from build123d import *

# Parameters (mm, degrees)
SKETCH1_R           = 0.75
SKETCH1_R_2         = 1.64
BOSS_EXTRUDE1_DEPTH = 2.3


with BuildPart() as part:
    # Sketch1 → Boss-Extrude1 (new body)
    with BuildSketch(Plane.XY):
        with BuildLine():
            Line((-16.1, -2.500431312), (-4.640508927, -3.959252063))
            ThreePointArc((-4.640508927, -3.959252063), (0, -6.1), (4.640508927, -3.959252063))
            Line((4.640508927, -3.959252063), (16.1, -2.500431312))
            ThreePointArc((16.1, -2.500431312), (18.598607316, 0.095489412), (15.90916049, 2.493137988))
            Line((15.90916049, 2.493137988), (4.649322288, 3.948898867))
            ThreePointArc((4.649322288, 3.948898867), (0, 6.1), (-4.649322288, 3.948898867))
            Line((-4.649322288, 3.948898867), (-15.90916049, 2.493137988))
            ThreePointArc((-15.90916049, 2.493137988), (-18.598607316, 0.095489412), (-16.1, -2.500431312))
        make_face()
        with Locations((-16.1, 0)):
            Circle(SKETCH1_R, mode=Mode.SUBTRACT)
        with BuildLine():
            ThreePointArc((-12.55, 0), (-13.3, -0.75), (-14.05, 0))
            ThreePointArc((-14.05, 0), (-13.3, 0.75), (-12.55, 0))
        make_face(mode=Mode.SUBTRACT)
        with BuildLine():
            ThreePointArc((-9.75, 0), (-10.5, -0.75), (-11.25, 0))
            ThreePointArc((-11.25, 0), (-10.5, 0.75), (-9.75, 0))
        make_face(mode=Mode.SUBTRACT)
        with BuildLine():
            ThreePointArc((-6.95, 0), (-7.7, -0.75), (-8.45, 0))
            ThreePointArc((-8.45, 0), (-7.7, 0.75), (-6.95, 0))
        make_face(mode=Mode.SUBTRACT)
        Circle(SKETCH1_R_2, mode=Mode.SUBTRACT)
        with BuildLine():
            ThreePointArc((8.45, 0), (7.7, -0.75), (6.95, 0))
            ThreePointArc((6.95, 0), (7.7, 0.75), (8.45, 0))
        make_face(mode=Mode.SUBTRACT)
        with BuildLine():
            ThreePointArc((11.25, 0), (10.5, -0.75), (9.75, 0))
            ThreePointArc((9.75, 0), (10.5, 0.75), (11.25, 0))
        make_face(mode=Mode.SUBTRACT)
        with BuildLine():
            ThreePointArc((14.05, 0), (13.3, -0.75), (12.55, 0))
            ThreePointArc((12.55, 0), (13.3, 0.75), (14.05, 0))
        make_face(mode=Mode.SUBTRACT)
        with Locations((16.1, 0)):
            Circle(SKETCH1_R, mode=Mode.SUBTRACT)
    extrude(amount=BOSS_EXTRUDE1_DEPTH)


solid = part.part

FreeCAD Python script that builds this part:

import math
import FreeCAD as App
import Part
import Sketcher

doc = App.newDocument("Part")
body = doc.addObject("PartDesign::Body", "Body")

# Sketch on XY plane
sketch1 = body.newObject("Sketcher::SketchObject", "Sketch")
sketch1.AttachmentSupport = (doc.getObject("XY_Plane"), [""])
sketch1.MapMode = "FlatFace"
sketch1.addGeometry(Part.LineSegment(App.Vector(-16.1, -2.5, 0), App.Vector(-4.6, -4, 0)), False)
sketch1.addGeometry(Part.ArcOfCircle(Part.Circle(App.Vector(0, 0, 0), App.Vector(0, 0, 1), 6.1), math.radians(-140), math.radians(-40)), False)
sketch1.addGeometry(Part.LineSegment(App.Vector(4.6, -4, 0), App.Vector(16.1, -2.5, 0)), False)
sketch1.addGeometry(Part.ArcOfCircle(Part.Circle(App.Vector(16.1, 0, 0), App.Vector(0, 0, 1), 2.5), math.radians(-90), math.radians(94)), False)
sketch1.addGeometry(Part.LineSegment(App.Vector(15.9, 2.5, 0), App.Vector(4.6, 3.9, 0)), False)
sketch1.addGeometry(Part.ArcOfCircle(Part.Circle(App.Vector(0, 0, 0), App.Vector(0, 0, 1), 6.1), math.radians(40), math.radians(140)), False)
sketch1.addGeometry(Part.LineSegment(App.Vector(-4.6, 3.9, 0), App.Vector(-15.9, 2.5, 0)), False)
sketch1.addGeometry(Part.ArcOfCircle(Part.Circle(App.Vector(-16.1, 0, 0), App.Vector(0, 0, 1), 2.5), math.radians(86), math.radians(270)), False)
sketch1.addGeometry(Part.Circle(App.Vector(-16.1, 0, 0), App.Vector(0, 0, 1), 0.8), False)
sketch1.addGeometry(Part.Circle(App.Vector(-13.3, 0, 0), App.Vector(0, 0, 1), 0.8), False)
sketch1.addGeometry(Part.Circle(App.Vector(-10.5, 0, 0), App.Vector(0, 0, 1), 0.8), False)
sketch1.addGeometry(Part.Circle(App.Vector(0, 0, 0), App.Vector(0, 0, 1), 1.6), False)
sketch1.addGeometry(Part.Circle(App.Vector(10.5, 0, 0), App.Vector(0, 0, 1), 0.8), False)
sketch1.addGeometry(Part.Circle(App.Vector(13.3, 0, 0), App.Vector(0, 0, 1), 0.8), False)
sketch1.addGeometry(Part.Circle(App.Vector(16.1, 0, 0), App.Vector(0, 0, 1), 0.8), False)
sketch1.addGeometry(Part.Circle(App.Vector(-7.7, 0, 0), App.Vector(0, 0, 1), 0.8), False)
sketch1.addGeometry(Part.Circle(App.Vector(7.7, 0, 0), App.Vector(0, 0, 1), 0.8), False)
sketch1.addConstraint(Sketcher.Constraint("Coincident", 0, 2, 1, 1))
sketch1.addConstraint(Sketcher.Constraint("Coincident", 1, 2, 2, 1))
sketch1.addConstraint(Sketcher.Constraint("Coincident", 2, 2, 3, 1))
sketch1.addConstraint(Sketcher.Constraint("Coincident", 3, 2, 4, 1))
sketch1.addConstraint(Sketcher.Constraint("Coincident", 4, 2, 5, 1))
sketch1.addConstraint(Sketcher.Constraint("Coincident", 5, 2, 6, 1))
sketch1.addConstraint(Sketcher.Constraint("Coincident", 6, 2, 7, 1))
sketch1.addConstraint(Sketcher.Constraint("Coincident", 7, 2, 0, 1))
sketch1.addConstraint(Sketcher.Constraint("Coincident", 1, 3, -1, 1))
sketch1.addConstraint(Sketcher.Constraint("Coincident", 5, 3, -1, 1))
sketch1.addConstraint(Sketcher.Constraint("Coincident", 11, 3, -1, 1))
sketch1.addConstraint(Sketcher.Constraint("Coincident", 8, 3, 7, 3))
sketch1.addConstraint(Sketcher.Constraint("Coincident", 14, 3, 3, 3))
sketch1.addConstraint(Sketcher.Constraint("Equal", 1, 5))
sketch1.addConstraint(Sketcher.Constraint("Equal", 3, 7))
sketch1.addConstraint(Sketcher.Constraint("Equal", 8, 9))
sketch1.addConstraint(Sketcher.Constraint("Equal", 9, 10))
sketch1.addConstraint(Sketcher.Constraint("Equal", 10, 12))
sketch1.addConstraint(Sketcher.Constraint("Equal", 12, 13))
sketch1.addConstraint(Sketcher.Constraint("Equal", 13, 14))
sketch1.addConstraint(Sketcher.Constraint("Equal", 14, 15))
sketch1.addConstraint(Sketcher.Constraint("Equal", 15, 16))
sketch1.addConstraint(Sketcher.Constraint("Symmetric", 3, 3, 7, 3, -1, 1))
sketch1.addConstraint(Sketcher.Constraint("Symmetric", 10, 3, 12, 3, -1, 1))
sketch1.addConstraint(Sketcher.Constraint("Symmetric", 9, 3, 13, 3, -1, 1))
sketch1.addConstraint(Sketcher.Constraint("Symmetric", 15, 3, 16, 3, -1, 1))
sketch1.addConstraint(Sketcher.Constraint("Symmetric", 3, 2, 6, 2, -2))
sketch1.addConstraint(Sketcher.Constraint("PointOnObject", 9, 3, -1))
sketch1.addConstraint(Sketcher.Constraint("PointOnObject", 10, 3, -1))
sketch1.addConstraint(Sketcher.Constraint("PointOnObject", 15, 3, -1))
sketch1.addConstraint(Sketcher.Constraint("Horizontal", 0, 2, 1, 2))
sketch1.addConstraint(Sketcher.Constraint("Horizontal", 4, 2, 5, 2))
sketch1.addConstraint(Sketcher.Constraint("Vertical", 14, 3, 2, 2))
sketch1.addConstraint(Sketcher.Constraint("Vertical", 8, 3, 7, 2))
sketch1.addConstraint(Sketcher.Constraint("Diameter", 8, 1.5))
sketch1.addConstraint(Sketcher.Constraint("Radius", 1, 6.1))
sketch1.addConstraint(Sketcher.Constraint("Diameter", 11, 3.28))
sketch1.addConstraint(Sketcher.Constraint("DistanceX", 10, 3, 12, 3, 21.0))
sketch1.addConstraint(Sketcher.Constraint("DistanceX", -1, 1, 3, 3, 16.1))
sketch1.addConstraint(Sketcher.Constraint("DistanceX", 9, 3, -1, 1, 13.3))
sketch1.addConstraint(Sketcher.Constraint("DistanceX", 15, 3, -1, 1, 7.7))
sketch1.addConstraint(Sketcher.Constraint("Radius", 3, 2.500431))
sketch1.addConstraint(Sketcher.Constraint("DistanceY", -1, 1, 4, 2, 3.948899))
sketch1.addConstraint(Sketcher.Constraint("DistanceX", 0, 2, -1, 1, 4.640509))
sketch1.addConstraint(Sketcher.Constraint("DistanceX", -1, 1, 3, 2, 15.90916))
pad1 = body.newObject("PartDesign::Pad", "Pad")
pad1.Profile = sketch1
pad1.Length = 2.3

doc.recompute()
